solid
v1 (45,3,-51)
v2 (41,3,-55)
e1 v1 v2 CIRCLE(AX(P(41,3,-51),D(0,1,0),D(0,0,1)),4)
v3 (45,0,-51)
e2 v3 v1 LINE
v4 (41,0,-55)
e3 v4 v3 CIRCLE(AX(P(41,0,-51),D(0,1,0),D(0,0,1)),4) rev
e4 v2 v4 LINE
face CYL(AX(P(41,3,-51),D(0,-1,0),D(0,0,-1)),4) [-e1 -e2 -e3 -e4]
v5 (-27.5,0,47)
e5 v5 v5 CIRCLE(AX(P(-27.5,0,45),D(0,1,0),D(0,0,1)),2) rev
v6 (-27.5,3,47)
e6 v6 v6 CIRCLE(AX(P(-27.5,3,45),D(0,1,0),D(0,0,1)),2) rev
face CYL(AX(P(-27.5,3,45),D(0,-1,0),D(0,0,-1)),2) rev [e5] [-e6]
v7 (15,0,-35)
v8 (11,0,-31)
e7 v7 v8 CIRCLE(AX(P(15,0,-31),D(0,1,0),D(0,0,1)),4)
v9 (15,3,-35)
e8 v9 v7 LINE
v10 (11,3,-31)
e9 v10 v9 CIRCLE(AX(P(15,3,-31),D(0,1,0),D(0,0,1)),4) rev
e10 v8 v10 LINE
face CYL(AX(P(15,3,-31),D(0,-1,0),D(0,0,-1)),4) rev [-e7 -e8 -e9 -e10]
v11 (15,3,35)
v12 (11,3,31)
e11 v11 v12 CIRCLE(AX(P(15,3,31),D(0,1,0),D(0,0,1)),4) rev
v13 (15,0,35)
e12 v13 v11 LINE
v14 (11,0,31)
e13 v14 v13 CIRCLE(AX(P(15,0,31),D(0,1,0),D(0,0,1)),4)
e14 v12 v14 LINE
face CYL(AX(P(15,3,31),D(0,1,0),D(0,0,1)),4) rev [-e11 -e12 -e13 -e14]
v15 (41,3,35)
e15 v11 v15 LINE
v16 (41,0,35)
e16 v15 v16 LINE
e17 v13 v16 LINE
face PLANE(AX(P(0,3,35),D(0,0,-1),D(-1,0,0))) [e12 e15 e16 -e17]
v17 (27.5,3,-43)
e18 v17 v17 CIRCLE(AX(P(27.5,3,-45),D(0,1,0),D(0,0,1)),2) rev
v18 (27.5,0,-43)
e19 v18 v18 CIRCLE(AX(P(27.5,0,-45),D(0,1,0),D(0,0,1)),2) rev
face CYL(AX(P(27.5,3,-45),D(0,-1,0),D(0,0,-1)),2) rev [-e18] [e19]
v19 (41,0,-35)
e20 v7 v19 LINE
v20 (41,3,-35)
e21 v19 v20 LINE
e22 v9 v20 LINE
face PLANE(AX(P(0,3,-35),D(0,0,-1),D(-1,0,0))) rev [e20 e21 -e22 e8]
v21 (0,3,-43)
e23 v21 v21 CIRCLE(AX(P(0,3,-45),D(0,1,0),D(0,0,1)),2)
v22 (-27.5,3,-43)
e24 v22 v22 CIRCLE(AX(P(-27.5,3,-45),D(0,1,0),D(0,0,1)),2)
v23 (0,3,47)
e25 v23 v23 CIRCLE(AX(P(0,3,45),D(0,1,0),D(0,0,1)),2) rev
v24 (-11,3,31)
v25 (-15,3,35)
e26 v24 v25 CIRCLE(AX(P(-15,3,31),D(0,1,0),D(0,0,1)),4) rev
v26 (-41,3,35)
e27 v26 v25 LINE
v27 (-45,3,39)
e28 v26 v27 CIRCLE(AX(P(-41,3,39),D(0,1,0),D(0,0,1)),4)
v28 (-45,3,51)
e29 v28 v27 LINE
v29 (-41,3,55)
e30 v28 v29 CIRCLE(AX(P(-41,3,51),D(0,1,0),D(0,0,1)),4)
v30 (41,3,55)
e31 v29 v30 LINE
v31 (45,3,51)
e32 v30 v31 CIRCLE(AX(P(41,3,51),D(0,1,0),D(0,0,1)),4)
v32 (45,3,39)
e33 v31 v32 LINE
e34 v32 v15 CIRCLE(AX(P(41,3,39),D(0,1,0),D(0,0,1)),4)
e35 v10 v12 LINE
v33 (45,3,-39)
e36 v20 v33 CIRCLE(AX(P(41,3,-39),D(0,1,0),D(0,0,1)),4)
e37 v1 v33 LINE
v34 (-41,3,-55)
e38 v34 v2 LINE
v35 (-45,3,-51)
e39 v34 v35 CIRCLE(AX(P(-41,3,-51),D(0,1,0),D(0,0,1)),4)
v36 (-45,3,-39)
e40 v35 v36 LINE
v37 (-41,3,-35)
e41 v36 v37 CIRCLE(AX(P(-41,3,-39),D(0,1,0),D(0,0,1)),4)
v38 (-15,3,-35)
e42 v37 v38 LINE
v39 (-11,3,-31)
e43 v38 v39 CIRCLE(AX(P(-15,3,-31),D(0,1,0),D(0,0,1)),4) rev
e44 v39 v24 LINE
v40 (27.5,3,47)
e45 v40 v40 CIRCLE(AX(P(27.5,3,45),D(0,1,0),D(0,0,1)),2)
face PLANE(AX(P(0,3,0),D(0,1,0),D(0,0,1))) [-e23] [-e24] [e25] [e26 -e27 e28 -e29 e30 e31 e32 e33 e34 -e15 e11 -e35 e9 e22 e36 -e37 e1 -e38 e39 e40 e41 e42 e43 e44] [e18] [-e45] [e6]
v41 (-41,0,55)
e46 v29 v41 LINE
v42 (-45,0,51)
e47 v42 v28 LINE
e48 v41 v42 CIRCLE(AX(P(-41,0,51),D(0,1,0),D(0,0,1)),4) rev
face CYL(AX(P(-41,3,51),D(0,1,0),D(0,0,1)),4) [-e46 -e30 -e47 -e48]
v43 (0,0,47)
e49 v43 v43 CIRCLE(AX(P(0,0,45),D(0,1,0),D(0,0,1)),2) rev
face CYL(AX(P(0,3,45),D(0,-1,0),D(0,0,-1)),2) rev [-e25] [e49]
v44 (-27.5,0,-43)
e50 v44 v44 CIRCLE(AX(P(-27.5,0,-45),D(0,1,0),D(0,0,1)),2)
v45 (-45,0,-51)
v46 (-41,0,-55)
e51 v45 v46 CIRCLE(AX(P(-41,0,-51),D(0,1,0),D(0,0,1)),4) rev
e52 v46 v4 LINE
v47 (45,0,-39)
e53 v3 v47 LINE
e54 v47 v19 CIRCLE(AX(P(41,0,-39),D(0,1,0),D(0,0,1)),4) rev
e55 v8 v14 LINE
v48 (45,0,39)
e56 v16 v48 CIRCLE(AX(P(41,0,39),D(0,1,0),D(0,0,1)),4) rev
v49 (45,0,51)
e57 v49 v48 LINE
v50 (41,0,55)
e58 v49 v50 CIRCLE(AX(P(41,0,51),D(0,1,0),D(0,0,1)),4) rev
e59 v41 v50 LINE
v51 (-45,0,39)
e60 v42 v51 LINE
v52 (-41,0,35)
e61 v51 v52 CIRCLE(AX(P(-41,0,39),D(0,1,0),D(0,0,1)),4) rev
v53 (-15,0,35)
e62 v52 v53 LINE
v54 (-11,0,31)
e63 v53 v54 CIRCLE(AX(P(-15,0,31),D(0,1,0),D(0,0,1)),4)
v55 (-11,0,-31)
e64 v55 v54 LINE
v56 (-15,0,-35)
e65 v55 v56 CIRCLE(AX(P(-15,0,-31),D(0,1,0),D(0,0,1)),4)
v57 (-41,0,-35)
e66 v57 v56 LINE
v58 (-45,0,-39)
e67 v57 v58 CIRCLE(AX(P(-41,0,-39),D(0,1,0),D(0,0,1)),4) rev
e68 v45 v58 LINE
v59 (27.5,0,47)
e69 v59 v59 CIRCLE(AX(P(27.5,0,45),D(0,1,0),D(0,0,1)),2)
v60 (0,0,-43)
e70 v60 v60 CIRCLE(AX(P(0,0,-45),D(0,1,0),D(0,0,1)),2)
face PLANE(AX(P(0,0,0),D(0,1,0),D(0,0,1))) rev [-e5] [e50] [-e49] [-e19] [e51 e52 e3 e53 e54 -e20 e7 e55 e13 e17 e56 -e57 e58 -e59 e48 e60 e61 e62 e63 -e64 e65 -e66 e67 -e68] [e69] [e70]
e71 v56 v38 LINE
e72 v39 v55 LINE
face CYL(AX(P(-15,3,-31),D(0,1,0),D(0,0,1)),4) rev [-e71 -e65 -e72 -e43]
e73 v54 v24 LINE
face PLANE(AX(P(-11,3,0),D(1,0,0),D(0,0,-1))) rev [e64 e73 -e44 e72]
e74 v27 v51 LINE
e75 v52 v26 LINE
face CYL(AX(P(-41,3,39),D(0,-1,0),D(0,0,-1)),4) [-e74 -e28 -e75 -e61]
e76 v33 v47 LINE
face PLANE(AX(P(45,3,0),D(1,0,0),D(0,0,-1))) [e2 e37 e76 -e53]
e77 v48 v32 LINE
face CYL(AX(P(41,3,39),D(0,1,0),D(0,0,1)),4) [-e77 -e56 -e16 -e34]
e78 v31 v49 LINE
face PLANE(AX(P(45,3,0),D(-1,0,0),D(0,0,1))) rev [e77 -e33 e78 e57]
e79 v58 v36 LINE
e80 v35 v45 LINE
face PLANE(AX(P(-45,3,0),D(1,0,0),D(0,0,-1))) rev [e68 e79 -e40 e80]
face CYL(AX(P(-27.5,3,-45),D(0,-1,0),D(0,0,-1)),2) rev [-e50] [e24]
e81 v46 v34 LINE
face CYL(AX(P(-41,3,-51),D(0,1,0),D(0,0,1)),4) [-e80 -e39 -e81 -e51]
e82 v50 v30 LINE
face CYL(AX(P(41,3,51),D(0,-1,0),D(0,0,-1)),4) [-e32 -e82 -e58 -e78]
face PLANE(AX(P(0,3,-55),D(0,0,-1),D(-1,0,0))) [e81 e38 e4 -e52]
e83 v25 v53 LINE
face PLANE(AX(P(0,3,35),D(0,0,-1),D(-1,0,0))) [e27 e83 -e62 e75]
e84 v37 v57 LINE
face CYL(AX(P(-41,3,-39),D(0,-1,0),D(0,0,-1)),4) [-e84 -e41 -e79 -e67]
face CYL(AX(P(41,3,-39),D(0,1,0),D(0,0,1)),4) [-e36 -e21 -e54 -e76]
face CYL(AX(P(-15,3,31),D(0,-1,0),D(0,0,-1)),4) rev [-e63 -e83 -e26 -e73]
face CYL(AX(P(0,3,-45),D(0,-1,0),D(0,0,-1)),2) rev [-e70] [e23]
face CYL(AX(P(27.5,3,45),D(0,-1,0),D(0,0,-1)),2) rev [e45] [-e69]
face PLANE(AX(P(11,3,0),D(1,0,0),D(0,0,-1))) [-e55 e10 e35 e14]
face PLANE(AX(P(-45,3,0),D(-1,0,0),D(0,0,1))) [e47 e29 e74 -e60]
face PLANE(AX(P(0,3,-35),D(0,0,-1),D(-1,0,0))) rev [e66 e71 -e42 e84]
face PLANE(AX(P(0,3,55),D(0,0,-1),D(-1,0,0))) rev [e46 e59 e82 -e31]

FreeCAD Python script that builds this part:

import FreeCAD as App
import Part
import Sketcher
from FreeCAD import Vector
Q = App.Units.Quantity


def edges_at(feature, points):
    """Names of the edges that pass closest to the given points."""
    edges = feature.Shape.Edges
    near = lambda p: min(range(len(edges)), key=lambda i: edges[i].distToShape(Part.Vertex(*p))[0])
    return sorted({f"Edge{near(p) + 1}" for p in points})

doc = App.newDocument("Part")
body = doc.addObject("PartDesign::Body", "Body")

sketch1 = body.newObject("Sketcher::SketchObject", "Sketch")
sketch1.AttachmentSupport = (doc.getObject("XZ_Plane"), [""])
sketch1.MapMode = "FlatFace"
sketch1.addGeometry([
    Part.LineSegment(Vector(-11, -35, 0), Vector(-11, 35, 0)),
    Part.LineSegment(Vector(-11, 35, 0), Vector(-45, 35, 0)),
    Part.LineSegment(Vector(-45, 35, 0), Vector(-45, 55, 0)),
    Part.LineSegment(Vector(-45, 55, 0), Vector(45, 55, 0)),
    Part.LineSegment(Vector(45, 55, 0), Vector(45, 35, 0)),
    Part.LineSegment(Vector(45, 35, 0), Vector(11, 35, 0)),
    Part.LineSegment(Vector(11, 35, 0), Vector(11, -35, 0)),
    Part.LineSegment(Vector(11, -35, 0), Vector(45, -35, 0)),
    Part.LineSegment(Vector(45, -35, 0), Vector(45, -55, 0)),
    Part.LineSegment(Vector(45, -55, 0), Vector(-45, -55, 0)),
    Part.LineSegment(Vector(-45, -55, 0), Vector(-45, -35, 0)),
    Part.LineSegment(Vector(-45, -35, 0), Vector(-11, -35, 0)),
    Part.Circle(Vector(27.5, 45, 0), Vector(0, 0, 1), 2),
    Part.Circle(Vector(-27.5, 45, 0), Vector(0, 0, 1), 2),
    Part.Circle(Vector(0, 45, 0), Vector(0, 0, 1), 2),
    Part.Circle(Vector(27.5, -45, 0), Vector(0, 0, 1), 2),
    Part.Circle(Vector(-27.5, -45, 0), Vector(0, 0, 1), 2),
    Part.Circle(Vector(0, -45, 0), Vector(0, 0, 1), 2),
], False)
sketch1.addConstraint([
    Sketcher.Constraint("Coincident", 0, 2, 1, 1),
    Sketcher.Constraint("Coincident", 1, 2, 2, 1),
    Sketcher.Constraint("Coincident", 2, 2, 3, 1),
    Sketcher.Constraint("Coincident", 3, 2, 4, 1),
    Sketcher.Constraint("Coincident", 4, 2, 5, 1),
    Sketcher.Constraint("Coincident", 5, 2, 6, 1),
    Sketcher.Constraint("Coincident", 6, 2, 7, 1),
    Sketcher.Constraint("Coincident", 7, 2, 8, 1),
    Sketcher.Constraint("Coincident", 8, 2, 9, 1),
    Sketcher.Constraint("Coincident", 9, 2, 10, 1),
    Sketcher.Constraint("Coincident", 10, 2, 11, 1),
    Sketcher.Constraint("Coincident", 11, 2, 0, 1),
    Sketcher.Constraint("Vertical", 0),
    Sketcher.Constraint("Horizontal", 1),
    Sketcher.Constraint("Vertical", 2),
    Sketcher.Constraint("Horizontal", 3),
    Sketcher.Constraint("Vertical", 4),
    Sketcher.Constraint("Horizontal", 5),
    Sketcher.Constraint("Vertical", 6),
    Sketcher.Constraint("Horizontal", 7),
    Sketcher.Constraint("Vertical", 8),
    Sketcher.Constraint("Horizontal", 9),
    Sketcher.Constraint("Vertical", 10),
    Sketcher.Constraint("Horizontal", 11),
    Sketcher.Constraint("Equal", 12, 13),
    Sketcher.Constraint("Equal", 13, 14),
    Sketcher.Constraint("Equal", 14, 15),
    Sketcher.Constraint("Equal", 15, 16),
    Sketcher.Constraint("Equal", 16, 17),
    Sketcher.Constraint("Symmetric", 13, 3, 15, 3, -1, 1),
    Sketcher.Constraint("Symmetric", 12, 3, 16, 3, -1, 1),
    Sketcher.Constraint("Symmetric", 14, 3, 17, 3, -1, 1),
    Sketcher.Constraint("Symmetric", 0, 2, 6, 2, -1, 1),
    Sketcher.Constraint("Symmetric", 2, 2, 8, 2, -1, 1),
    Sketcher.Constraint("Symmetric", 4, 2, 10, 2, -1, 1),
    Sketcher.Constraint("Symmetric", 12, 3, 13, 3, -2),
    Sketcher.Constraint("Symmetric", 1, 2, 4, 2, -2),
    Sketcher.Constraint("PointOnObject", 14, 3, -2),
    Sketcher.Constraint("Horizontal", 13, 3, 14, 3),
    Sketcher.Constraint("Diameter", 12, Q("4 mm")),
    Sketcher.Constraint("DistanceX", 1, 2, 1, 1, Q("34 mm")),
    Sketcher.Constraint("DistanceX", 3, 1, 3, 2, Q("90 mm")),
    Sketcher.Constraint("DistanceY", 0, 1, 0, 2, Q("70 mm")),
    Sketcher.Constraint("DistanceY", 2, 1, 2, 2, Q("20 mm")),
    Sketcher.Constraint("DistanceY", -1, 1, 12, 3, Q("45 mm")),
    Sketcher.Constraint("DistanceX", 13, 3, 12, 3, Q("55 mm")),
])
pad1 = body.newObject("PartDesign::Pad", "Pad")
pad1.Profile = sketch1
pad1.Length = 3
pad1.Reversed = True
doc.recompute()

fillet = body.newObject("PartDesign::Fillet", "Fillet")
fillet.Base = (pad1, edges_at(pad1, [
    (11, 1.5, 35),
    (45, 1.5, 35),
    (45, 1.5, 55),
    (-45, 1.5, 55),
    (-45, 1.5, 35),
    (-11, 1.5, 35),
    (-11, 1.5, -35),
    (-45, 1.5, -35),
    (-45, 1.5, -55),
    (45, 1.5, -55),
    (45, 1.5, -35),
    (11, 1.5, -35),
]))
fillet.Radius = 4

doc.recompute()
